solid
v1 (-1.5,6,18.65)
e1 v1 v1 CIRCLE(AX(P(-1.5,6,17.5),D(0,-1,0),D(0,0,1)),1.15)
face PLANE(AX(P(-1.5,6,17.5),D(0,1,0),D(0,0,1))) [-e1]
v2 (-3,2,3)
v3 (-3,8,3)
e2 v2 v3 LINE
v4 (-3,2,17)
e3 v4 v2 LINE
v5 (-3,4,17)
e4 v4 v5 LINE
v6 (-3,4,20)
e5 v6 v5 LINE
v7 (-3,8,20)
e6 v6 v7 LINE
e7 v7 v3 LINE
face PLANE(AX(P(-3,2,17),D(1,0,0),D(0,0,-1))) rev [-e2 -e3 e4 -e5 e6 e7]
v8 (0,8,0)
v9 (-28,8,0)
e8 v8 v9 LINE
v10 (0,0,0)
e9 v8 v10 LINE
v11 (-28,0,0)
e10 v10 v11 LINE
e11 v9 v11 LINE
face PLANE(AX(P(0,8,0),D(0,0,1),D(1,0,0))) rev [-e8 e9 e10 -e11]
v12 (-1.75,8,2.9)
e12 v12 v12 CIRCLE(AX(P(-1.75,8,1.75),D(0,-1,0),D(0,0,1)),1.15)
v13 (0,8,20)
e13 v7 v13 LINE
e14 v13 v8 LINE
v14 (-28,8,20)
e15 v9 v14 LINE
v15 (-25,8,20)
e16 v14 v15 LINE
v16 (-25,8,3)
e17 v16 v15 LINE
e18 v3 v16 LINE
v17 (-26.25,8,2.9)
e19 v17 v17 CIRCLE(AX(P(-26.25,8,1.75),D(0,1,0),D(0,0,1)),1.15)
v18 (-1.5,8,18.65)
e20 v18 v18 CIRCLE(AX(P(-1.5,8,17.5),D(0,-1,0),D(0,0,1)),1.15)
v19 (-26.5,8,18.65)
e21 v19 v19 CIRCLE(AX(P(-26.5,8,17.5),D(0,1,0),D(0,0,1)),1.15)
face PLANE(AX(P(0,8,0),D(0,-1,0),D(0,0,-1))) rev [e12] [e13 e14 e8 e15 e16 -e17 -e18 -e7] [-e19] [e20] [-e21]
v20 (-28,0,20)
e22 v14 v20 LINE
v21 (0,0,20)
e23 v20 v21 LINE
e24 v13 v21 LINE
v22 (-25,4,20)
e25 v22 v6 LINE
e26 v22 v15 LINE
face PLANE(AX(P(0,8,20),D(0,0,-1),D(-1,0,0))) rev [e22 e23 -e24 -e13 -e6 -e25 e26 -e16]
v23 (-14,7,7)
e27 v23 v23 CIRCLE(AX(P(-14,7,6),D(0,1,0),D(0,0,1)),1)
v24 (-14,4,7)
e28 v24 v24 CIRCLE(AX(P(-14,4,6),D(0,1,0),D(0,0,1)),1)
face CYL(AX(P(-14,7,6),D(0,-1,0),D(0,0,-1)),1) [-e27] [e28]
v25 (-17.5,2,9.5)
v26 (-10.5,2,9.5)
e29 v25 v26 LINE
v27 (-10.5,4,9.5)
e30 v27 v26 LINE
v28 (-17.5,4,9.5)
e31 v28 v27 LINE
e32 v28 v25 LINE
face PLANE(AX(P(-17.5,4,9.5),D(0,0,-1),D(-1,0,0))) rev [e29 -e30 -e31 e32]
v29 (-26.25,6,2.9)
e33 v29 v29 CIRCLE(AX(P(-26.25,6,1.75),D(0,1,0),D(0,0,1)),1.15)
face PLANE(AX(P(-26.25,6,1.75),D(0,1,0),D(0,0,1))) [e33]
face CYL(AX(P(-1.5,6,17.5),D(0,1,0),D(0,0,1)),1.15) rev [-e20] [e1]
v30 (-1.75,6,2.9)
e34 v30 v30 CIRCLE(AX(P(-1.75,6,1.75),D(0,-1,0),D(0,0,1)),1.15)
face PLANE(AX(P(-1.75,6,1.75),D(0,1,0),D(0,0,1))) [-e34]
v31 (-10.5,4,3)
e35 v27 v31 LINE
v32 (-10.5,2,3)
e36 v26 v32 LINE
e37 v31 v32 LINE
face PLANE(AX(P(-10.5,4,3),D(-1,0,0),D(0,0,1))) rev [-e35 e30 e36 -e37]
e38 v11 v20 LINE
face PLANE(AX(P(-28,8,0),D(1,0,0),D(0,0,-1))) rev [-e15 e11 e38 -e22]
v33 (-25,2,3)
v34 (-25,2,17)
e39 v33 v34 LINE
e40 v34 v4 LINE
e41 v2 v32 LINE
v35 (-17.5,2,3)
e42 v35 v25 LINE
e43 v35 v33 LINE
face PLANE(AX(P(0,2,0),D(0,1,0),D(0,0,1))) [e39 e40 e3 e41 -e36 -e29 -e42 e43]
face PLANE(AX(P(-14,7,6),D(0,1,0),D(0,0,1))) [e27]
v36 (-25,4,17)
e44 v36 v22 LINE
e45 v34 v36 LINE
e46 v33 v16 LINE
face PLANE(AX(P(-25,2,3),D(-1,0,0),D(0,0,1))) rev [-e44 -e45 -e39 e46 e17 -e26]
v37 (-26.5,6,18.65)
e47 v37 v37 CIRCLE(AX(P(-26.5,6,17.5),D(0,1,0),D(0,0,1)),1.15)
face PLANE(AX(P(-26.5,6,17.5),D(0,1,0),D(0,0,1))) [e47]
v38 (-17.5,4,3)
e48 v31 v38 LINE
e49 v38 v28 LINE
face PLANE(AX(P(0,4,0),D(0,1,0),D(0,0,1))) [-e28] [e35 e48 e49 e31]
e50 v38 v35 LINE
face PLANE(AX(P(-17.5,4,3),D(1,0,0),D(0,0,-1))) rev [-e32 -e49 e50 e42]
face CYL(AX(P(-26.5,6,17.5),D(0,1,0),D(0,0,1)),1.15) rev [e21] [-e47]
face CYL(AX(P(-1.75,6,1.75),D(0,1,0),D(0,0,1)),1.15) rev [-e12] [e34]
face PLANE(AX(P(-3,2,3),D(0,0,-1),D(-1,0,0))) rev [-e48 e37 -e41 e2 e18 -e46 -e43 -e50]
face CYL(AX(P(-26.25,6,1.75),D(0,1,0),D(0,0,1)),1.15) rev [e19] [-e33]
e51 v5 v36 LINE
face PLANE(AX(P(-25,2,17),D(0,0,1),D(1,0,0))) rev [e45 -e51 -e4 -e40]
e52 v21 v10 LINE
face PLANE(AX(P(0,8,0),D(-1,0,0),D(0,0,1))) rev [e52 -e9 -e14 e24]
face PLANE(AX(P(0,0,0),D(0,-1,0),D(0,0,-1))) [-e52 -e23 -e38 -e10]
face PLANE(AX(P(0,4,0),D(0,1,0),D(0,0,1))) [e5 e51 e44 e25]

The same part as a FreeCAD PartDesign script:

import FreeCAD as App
import Part
import Sketcher
from FreeCAD import Vector
Q = App.Units.Quantity


def add_polygon(sketch, points):
    """Adds a closed chain of lines whose ends are joined by coincident constraints."""
    first, n = sketch.GeometryCount, len(points)
    for a, b in zip(points, points[1:] + points[:1]):
        sketch.addGeometry(Part.LineSegment(App.Vector(*a, 0), App.Vector(*b, 0)), False)
    for i in range(n):
        sketch.addConstraint(Sketcher.Constraint("Coincident", first + i, 2, first + (i + 1) % n, 1))

doc = App.newDocument("Part")
body = doc.addObject("PartDesign::Body", "Body")

# Sketch on XZ plane
sketch1 = body.newObject("Sketcher::SketchObject", "Sketch")
sketch1.AttachmentSupport = (doc.getObject("XZ_Plane"), [""])
sketch1.MapMode = "FlatFace"
add_polygon(sketch1, [(-28, 0), (-28, 20), (0, 20), (0, 0)])  # lines 0-3
sketch1.addConstraint([
    Sketcher.Constraint("Vertical", 0),
    Sketcher.Constraint("Horizontal", 1),
    Sketcher.Constraint("Vertical", 2),
    Sketcher.Constraint("Horizontal", 3),
    Sketcher.Constraint("Coincident", 2, 2, -1, 1),
    Sketcher.Constraint("DistanceX", 1, 1, 1, 2, Q("28 mm")),
    Sketcher.Constraint("DistanceY", 0, 1, 0, 2, Q("20 mm")),
])
pad1 = body.newObject("PartDesign::Pad", "Pad")
pad1.Profile = sketch1
pad1.Length = 8
pad1.Reversed = True

# Sketch on XZ plane
sketch2 = body.newObject("Sketcher::SketchObject", "Sketch001")
sketch2.AttachmentSupport = (doc.getObject("XZ_Plane"), [""])
sketch2.MapMode = "FlatFace"
sketch2.AttachmentOffset = App.Placement(Vector(0, 0, -8), App.Rotation())
add_polygon(sketch2, [(-25, 3), (-25, 17), (-3, 17), (-3, 3)])  # lines 0-3
sketch2.addConstraint([
    Sketcher.Constraint("Vertical", 0),
    Sketcher.Constraint("Horizontal", 1),
    Sketcher.Constraint("Vertical", 2),
    Sketcher.Constraint("Horizontal", 3),
    Sketcher.Constraint("DistanceX", 1, 1, 1, 2, Q("22 mm")),
    Sketcher.Constraint("DistanceY", 0, 1, 0, 2, Q("14 mm")),
    Sketcher.Constraint("DistanceX", 0, 2, -1, 1, Q("25 mm")),
    Sketcher.Constraint("DistanceY", -1, 1, 0, 2, Q("17 mm")),
])
pocket1 = body.newObject("PartDesign::Pocket", "Pocket")
pocket1.Profile = sketch2
pocket1.Length = 6
pocket1.Reversed = True

# Sketch on XZ plane
sketch3 = body.newObject("Sketcher::SketchObject", "Sketch002")
sketch3.AttachmentSupport = (doc.getObject("XZ_Plane"), [""])
sketch3.MapMode = "FlatFace"
sketch3.AttachmentOffset = App.Placement(Vector(0, 0, -8), App.Rotation())
add_polygon(sketch3, [(-25, 17), (-25, 20), (-3, 20), (-3, 17)])  # lines 0-3
sketch3.addConstraint([
    Sketcher.Constraint("Vertical", 0),
    Sketcher.Constraint("Horizontal", 1),
    Sketcher.Constraint("Vertical", 2),
    Sketcher.Constraint("Horizontal", 3),
    Sketcher.Constraint("DistanceX", 1, 1, 1, 2, Q("22 mm")),
    Sketcher.Constraint("DistanceY", 0, 1, 0, 2, Q("3 mm")),
    Sketcher.Constraint("DistanceX", 0, 2, -1, 1, Q("25 mm")),
    Sketcher.Constraint("DistanceY", -1, 1, 0, 2, Q("20 mm")),
])
pocket2 = body.newObject("PartDesign::Pocket", "Pocket001")
pocket2.Profile = sketch3
pocket2.Length = 4
pocket2.Reversed = True

# Sketch on XZ plane
sketch4 = body.newObject("Sketcher::SketchObject", "Sketch003")
sketch4.AttachmentSupport = (doc.getObject("XZ_Plane"), [""])
sketch4.MapMode = "FlatFace"
sketch4.AttachmentOffset = App.Placement(Vector(0, 0, -2), App.Rotation())
sketch4.addGeometry(Part.Circle(Vector(-14, 6, 0), Vector(0, 0, 1), 1), False)
sketch4.addConstraint([
    Sketcher.Constraint("Diameter", 0, Q("2 mm")),
    Sketcher.Constraint("DistanceX", 0, 3, -1, 1, Q("14 mm")),
    Sketcher.Constraint("DistanceY", -1, 1, 0, 3, Q("6 mm")),
])
pad2 = body.newObject("PartDesign::Pad", "Pad001")
pad2.Profile = sketch4
pad2.Length = 5
pad2.Reversed = True

# Sketch on XZ plane
sketch5 = body.newObject("Sketcher::SketchObject", "Sketch004")
sketch5.AttachmentSupport = (doc.getObject("XZ_Plane"), [""])
sketch5.MapMode = "FlatFace"
sketch5.AttachmentOffset = App.Placement(Vector(0, 0, -8), App.Rotation())
sketch5.addGeometry(Part.Circle(Vector(-26.2, 1.8, 0), Vector(0, 0, 1), 1.1), False)
sketch5.addConstraint([
    Sketcher.Constraint("Diameter", 0, Q("2.3 mm")),
    Sketcher.Constraint("DistanceX", 0, 3, -1, 1, Q("26.25 mm")),
    Sketcher.Constraint("DistanceY", -1, 1, 0, 3, Q("1.75 mm")),
])
pocket3 = body.newObject("PartDesign::Pocket", "Pocket002")
pocket3.Profile = sketch5
pocket3.Length = 2
pocket3.Reversed = True
doc.recompute()

datumplane = body.newObject("PartDesign::Plane", "DatumPlane")
datumplane.AttachmentSupport = (doc.getObject("YZ_Plane"), [""])
datumplane.MapMode = "FlatFace"
datumplane.AttachmentOffset = App.Placement(Vector(0, 0, -14), App.Rotation())
mirrored = body.newObject("PartDesign::Mirrored", "Mirrored")
mirrored.Originals = [pocket3]
mirrored.MirrorPlane = (datumplane, [""])
body.Tip = mirrored

# Sketch on XZ plane
sketch6 = body.newObject("Sketcher::SketchObject", "Sketch005")
sketch6.AttachmentSupport = (doc.getObject("XZ_Plane"), [""])
sketch6.MapMode = "FlatFace"
sketch6.AttachmentOffset = App.Placement(Vector(0, 0, -8), App.Rotation())
sketch6.addGeometry(Part.Circle(Vector(-26.5, 17.5, 0), Vector(0, 0, 1), 1.1), False)
sketch6.addConstraint([
    Sketcher.Constraint("Diameter", 0, Q("2.3 mm")),
    Sketcher.Constraint("DistanceX", 0, 3, -1, 1, Q("26.5 mm")),
    Sketcher.Constraint("DistanceY", -1, 1, 0, 3, Q("17.5 mm")),
])
pocket4 = body.newObject("PartDesign::Pocket", "Pocket003")
pocket4.Profile = sketch6
pocket4.Length = 2
pocket4.Reversed = True
doc.recompute()

datumplane2 = body.newObject("PartDesign::Plane", "DatumPlane001")
datumplane2.AttachmentSupport = (doc.getObject("YZ_Plane"), [""])
datumplane2.MapMode = "FlatFace"
datumplane2.AttachmentOffset = App.Placement(Vector(0, 0, -14), App.Rotation())
mirrored2 = body.newObject("PartDesign::Mirrored", "Mirrored001")
mirrored2.Originals = [pocket4]
mirrored2.MirrorPlane = (datumplane2, [""])
body.Tip = mirrored2

# Sketch on XZ plane
sketch7 = body.newObject("Sketcher::SketchObject", "Sketch006")
sketch7.AttachmentSupport = (doc.getObject("XZ_Plane"), [""])
sketch7.MapMode = "FlatFace"
sketch7.AttachmentOffset = App.Placement(Vector(0, 0, -2), App.Rotation())
add_polygon(sketch7, [(-18, 3), (-18, 10), (-10, 10), (-10, 3)])  # lines 0-3
sketch7.addConstraint([
    Sketcher.Constraint("Vertical", 0),
    Sketcher.Constraint("Horizontal", 1),
    Sketcher.Constraint("Vertical", 2),
    Sketcher.Constraint("Horizontal", 3),
    Sketcher.Constraint("DistanceX", 1, 1, 1, 2, Q("7 mm")),
    Sketcher.Constraint("DistanceY", 0, 1, 0, 2, Q("6.5 mm")),
    Sketcher.Constraint("DistanceY", -1, 1, 2, 2, Q("3 mm")),
    Sketcher.Constraint("DistanceX", 0, 2, -1, 1, Q("17.5 mm")),
])
pad3 = body.newObject("PartDesign::Pad", "Pad002")
pad3.Profile = sketch7
pad3.Length = 2
pad3.Reversed = True

doc.recompute()
